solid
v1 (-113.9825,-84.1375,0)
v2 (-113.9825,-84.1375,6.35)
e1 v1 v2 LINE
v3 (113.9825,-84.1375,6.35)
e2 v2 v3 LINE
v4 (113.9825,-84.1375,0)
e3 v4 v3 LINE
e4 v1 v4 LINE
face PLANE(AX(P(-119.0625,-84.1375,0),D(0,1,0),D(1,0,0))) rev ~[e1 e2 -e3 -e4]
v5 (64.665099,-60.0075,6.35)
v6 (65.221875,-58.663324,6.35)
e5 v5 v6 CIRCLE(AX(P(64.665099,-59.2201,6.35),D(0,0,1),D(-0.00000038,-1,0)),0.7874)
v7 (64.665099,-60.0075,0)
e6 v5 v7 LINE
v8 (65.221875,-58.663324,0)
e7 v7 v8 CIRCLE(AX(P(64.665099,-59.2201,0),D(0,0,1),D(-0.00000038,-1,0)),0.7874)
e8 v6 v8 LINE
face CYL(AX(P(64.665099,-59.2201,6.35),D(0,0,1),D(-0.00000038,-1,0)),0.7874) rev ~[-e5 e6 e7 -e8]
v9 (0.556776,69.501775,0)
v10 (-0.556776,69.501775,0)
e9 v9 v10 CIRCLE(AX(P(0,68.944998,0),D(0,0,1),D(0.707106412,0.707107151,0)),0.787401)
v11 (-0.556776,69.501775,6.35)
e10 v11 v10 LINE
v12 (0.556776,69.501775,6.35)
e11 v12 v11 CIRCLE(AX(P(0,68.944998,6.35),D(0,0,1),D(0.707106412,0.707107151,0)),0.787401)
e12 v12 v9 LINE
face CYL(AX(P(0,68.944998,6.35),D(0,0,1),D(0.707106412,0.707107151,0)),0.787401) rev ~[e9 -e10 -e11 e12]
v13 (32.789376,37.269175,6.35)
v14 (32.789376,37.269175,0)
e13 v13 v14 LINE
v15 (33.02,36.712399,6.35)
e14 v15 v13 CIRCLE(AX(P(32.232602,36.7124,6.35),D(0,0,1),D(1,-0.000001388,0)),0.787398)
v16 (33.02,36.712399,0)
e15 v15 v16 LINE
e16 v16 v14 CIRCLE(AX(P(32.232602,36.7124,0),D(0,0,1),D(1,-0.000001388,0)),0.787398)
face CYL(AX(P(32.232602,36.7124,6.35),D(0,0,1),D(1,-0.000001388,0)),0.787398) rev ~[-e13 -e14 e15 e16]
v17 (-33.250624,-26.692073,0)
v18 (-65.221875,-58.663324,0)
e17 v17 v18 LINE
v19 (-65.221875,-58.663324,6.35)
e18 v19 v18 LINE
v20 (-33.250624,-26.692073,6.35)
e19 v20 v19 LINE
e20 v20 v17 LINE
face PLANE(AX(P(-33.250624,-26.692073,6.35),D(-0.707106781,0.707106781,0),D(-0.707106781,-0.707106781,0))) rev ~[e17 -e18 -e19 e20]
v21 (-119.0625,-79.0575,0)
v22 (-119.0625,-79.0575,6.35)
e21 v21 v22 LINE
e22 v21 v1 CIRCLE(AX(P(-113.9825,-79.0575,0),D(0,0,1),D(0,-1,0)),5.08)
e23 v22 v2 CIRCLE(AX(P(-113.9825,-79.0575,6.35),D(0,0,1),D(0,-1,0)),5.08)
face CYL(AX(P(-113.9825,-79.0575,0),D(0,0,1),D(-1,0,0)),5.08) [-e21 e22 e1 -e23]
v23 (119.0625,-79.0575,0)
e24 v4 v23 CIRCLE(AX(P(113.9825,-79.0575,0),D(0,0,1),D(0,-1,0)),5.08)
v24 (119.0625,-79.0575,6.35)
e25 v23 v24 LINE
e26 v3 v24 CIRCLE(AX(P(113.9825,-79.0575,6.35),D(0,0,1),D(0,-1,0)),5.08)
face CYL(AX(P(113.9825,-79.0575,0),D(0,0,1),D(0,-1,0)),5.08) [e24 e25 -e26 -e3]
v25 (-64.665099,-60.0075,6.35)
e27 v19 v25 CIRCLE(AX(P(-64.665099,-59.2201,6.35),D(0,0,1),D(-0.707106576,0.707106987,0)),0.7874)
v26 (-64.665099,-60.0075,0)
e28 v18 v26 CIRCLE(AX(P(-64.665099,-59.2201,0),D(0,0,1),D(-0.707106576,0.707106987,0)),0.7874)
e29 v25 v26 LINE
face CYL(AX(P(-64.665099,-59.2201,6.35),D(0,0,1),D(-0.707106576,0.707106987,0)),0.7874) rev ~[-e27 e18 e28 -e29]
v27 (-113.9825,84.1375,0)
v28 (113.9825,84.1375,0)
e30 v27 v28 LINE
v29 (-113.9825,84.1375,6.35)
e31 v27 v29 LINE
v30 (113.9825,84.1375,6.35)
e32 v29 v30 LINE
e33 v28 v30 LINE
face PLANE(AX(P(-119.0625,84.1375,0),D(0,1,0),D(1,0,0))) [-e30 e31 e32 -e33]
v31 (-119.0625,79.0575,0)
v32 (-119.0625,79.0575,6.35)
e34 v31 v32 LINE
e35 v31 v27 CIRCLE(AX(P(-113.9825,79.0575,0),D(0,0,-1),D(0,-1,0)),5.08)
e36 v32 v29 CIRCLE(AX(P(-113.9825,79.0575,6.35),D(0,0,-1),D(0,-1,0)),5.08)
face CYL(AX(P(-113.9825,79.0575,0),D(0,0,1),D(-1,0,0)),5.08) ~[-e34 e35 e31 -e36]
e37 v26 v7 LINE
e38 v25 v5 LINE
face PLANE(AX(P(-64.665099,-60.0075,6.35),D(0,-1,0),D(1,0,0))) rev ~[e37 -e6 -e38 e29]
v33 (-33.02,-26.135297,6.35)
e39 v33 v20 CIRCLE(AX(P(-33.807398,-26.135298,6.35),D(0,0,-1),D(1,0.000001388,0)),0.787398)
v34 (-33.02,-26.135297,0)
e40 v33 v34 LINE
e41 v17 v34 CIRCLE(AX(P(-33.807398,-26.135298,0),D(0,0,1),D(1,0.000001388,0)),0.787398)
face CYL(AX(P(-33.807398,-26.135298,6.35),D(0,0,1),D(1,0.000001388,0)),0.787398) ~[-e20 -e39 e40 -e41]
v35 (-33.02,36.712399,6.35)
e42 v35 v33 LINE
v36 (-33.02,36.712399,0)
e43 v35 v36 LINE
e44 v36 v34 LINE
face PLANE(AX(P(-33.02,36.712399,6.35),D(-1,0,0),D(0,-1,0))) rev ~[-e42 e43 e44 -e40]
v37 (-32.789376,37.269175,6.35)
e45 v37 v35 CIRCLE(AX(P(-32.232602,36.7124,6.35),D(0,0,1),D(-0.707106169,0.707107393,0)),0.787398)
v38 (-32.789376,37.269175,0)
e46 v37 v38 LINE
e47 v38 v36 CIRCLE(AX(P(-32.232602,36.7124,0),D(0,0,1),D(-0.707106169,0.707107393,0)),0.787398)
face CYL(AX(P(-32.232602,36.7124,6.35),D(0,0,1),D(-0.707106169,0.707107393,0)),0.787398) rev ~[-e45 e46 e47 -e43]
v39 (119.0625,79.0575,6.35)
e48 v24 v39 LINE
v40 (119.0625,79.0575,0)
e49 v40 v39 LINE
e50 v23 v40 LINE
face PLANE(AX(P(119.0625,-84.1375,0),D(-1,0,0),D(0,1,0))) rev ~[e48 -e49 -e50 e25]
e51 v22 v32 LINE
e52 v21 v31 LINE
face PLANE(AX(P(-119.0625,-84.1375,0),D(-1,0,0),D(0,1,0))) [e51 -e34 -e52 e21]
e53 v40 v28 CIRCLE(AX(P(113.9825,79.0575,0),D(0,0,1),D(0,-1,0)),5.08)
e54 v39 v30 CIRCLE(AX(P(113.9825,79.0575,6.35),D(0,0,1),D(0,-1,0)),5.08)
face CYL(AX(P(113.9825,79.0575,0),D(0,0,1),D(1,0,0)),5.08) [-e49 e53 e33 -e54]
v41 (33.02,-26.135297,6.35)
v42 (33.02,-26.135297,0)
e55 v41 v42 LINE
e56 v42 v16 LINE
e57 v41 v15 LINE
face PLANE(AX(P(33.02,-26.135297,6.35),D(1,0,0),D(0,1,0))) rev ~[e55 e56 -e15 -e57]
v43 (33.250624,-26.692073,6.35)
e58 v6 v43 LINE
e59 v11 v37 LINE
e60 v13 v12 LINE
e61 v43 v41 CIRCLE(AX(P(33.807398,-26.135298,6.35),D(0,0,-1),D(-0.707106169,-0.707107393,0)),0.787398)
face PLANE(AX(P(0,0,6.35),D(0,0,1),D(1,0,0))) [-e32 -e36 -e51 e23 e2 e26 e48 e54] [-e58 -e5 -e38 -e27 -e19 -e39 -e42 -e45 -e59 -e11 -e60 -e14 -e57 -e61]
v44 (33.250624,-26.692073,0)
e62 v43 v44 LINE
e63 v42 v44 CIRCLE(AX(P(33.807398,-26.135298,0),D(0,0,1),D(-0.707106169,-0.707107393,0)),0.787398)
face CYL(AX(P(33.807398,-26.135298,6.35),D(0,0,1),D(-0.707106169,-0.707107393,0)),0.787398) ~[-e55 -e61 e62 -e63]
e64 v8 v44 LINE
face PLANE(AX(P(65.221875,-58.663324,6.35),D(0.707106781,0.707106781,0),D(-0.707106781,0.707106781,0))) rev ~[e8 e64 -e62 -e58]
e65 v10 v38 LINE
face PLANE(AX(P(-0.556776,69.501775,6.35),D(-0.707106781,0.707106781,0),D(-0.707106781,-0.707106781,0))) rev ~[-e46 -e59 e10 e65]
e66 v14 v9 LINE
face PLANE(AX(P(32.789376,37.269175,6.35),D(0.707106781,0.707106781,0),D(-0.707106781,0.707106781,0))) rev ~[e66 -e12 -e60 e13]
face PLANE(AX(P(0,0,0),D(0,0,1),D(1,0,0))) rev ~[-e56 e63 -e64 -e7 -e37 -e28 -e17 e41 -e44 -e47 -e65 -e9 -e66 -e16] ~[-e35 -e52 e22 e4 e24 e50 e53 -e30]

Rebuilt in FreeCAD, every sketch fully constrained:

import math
import FreeCAD as App
import Part
import Sketcher

V = App.Vector
Q = App.Units.Quantity


def edges_at(feature, points):
    """Names of the edges that pass closest to the given points."""
    edges = feature.Shape.Edges
    near = lambda p: min(range(len(edges)), key=lambda i: edges[i].distToShape(Part.Vertex(*p))[0])
    return sorted({f"Edge{near(p) + 1}" for p in points})

doc = App.newDocument("Part")
body = doc.addObject("PartDesign::Body", "Body")

# Sketch on XY plane
sketch1 = doc.addObject("Sketcher::SketchObject", "Sketch")
body.addObject(sketch1)
sketch1.AttachmentSupport = (doc.XY_Plane, [""])
sketch1.MapMode = "FlatFace"
sketch1.addGeometry(Part.LineSegment(V(-119, 84, 0), V(-119, -84, 0)), False)
sketch1.addGeometry(Part.LineSegment(V(-119, -84, 0), V(119, -84, 0)), False)
sketch1.addGeometry(Part.LineSegment(V(119, -84, 0), V(119, 84, 0)), False)
sketch1.addGeometry(Part.LineSegment(V(119, 84, 0), V(-119, 84, 0)), False)
sketch1.addConstraint(Sketcher.Constraint("Coincident", 0, 2, 1, 1))
sketch1.addConstraint(Sketcher.Constraint("Coincident", 1, 2, 2, 1))
sketch1.addConstraint(Sketcher.Constraint("Coincident", 2, 2, 3, 1))
sketch1.addConstraint(Sketcher.Constraint("Coincident", 3, 2, 0, 1))
sketch1.addConstraint(Sketcher.Constraint("Vertical", 0))
sketch1.addConstraint(Sketcher.Constraint("Horizontal", 1))
sketch1.addConstraint(Sketcher.Constraint("Vertical", 2))
sketch1.addConstraint(Sketcher.Constraint("Horizontal", 3))
sketch1.addConstraint(Sketcher.Constraint("Symmetric", 0, 2, 2, 2, -1, 1))
sketch1.addConstraint(Sketcher.Constraint("DistanceX", 1, 1, 1, 2, Q("9.375 in")))
sketch1.addConstraint(Sketcher.Constraint("DistanceY", 0, 2, 0, 1, Q("6.625 in")))
pad1 = doc.addObject("PartDesign::Pad", "Pad")
body.addObject(pad1)
pad1.Profile = sketch1
pad1.Length = Q("0.25 in")
doc.recompute()

fillet = doc.addObject("PartDesign::Fillet", "Fillet")
body.addObject(fillet)
fillet.Base = (pad1, edges_at(pad1, [
    (-119.062, 84.138, 3.175),
    (119.062, 84.138, 3.175),
    (-119.062, -84.138, 3.175),
    (119.062, -84.138, 3.175),
]))
fillet.Radius = Q("0.2 in")

# Sketch on XY plane
sketch2 = doc.addObject("Sketcher::SketchObject", "Sketch001")
body.addObject(sketch2)
sketch2.AttachmentSupport = (doc.XY_Plane, [""])
sketch2.MapMode = "FlatFace"
sketch2.AttachmentOffset = App.Placement(V(0, 0, 0.25 * 25.4), App.Rotation())
sketch2.addGeometry(Part.LineSegment(V(-64, -59, 0), V(64, -59, 0)), False)
sketch2.addGeometry(Part.LineSegment(V(64, -59, 0), V(32, -27, 0)), False)
sketch2.addGeometry(Part.LineSegment(V(32, -27, 0), V(32, 37, 0)), False)
sketch2.addGeometry(Part.LineSegment(V(32, 37, 0), V(0, 68, 0)), False)
sketch2.addGeometry(Part.LineSegment(V(0, 68, 0), V(-32, 37, 0)), False)
sketch2.addGeometry(Part.LineSegment(V(-32, 37, 0), V(-32, -27, 0)), False)
sketch2.addGeometry(Part.LineSegment(V(-32, -27, 0), V(-64, -59, 0)), False)
sketch2.addConstraint(Sketcher.Constraint("Coincident", 0, 2, 1, 1))
sketch2.addConstraint(Sketcher.Constraint("Coincident", 1, 2, 2, 1))
sketch2.addConstraint(Sketcher.Constraint("Coincident", 2, 2, 3, 1))
sketch2.addConstraint(Sketcher.Constraint("Coincident", 3, 2, 4, 1))
sketch2.addConstraint(Sketcher.Constraint("Coincident", 4, 2, 5, 1))
sketch2.addConstraint(Sketcher.Constraint("Coincident", 5, 2, 6, 1))
sketch2.addConstraint(Sketcher.Constraint("Coincident", 6, 2, 0, 1))
sketch2.addConstraint(Sketcher.Constraint("Horizontal", 0))
sketch2.addConstraint(Sketcher.Constraint("Vertical", 2))
sketch2.addConstraint(Sketcher.Constraint("Vertical", 5))
sketch2.addConstraint(Sketcher.Constraint("Symmetric", 2, 2, 4, 2, -2))
sketch2.addConstraint(Sketcher.Constraint("PointOnObject", 3, 2, -2))
sketch2.addConstraint(Sketcher.Constraint("Parallel", 1, 3))
sketch2.addConstraint(Sketcher.Constraint("Perpendicular", 3, 4))
sketch2.addConstraint(Sketcher.Constraint("Parallel", 4, 6))
sketch2.addConstraint(Sketcher.Constraint("Horizontal", 1, 2, 5, 2))
sketch2.addConstraint(Sketcher.Constraint("Equal", 1, 3))
sketch2.addConstraint(Sketcher.Constraint("DistanceX", 0, 1, 0, 2, Q("5 in")))
sketch2.addConstraint(Sketcher.Constraint("DistanceY", 2, 1, 2, 2, Q("2.5 in")))
sketch2.addConstraint(Sketcher.Constraint("DistanceY", 0, 2, -1, 1, Q("2.3125 in")))
pocket1 = doc.addObject("PartDesign::Pocket", "Pocket")
body.addObject(pocket1)
pocket1.Profile = sketch2
pocket1.Length = Q("1 in")

# Sketch on XY plane
sketch3 = doc.addObject("Sketcher::SketchObject", "Sketch002")
body.addObject(sketch3)
sketch3.AttachmentSupport = (doc.XY_Plane, [""])
sketch3.MapMode = "FlatFace"
sketch3.AttachmentOffset = App.Placement(V(0, 0, 0.25 * 25.4), App.Rotation())
sketch3.addGeometry(Part.LineSegment(V(-64, -59, 0), V(64, -59, 0)), False)
sketch3.addGeometry(Part.LineSegment(V(64, -59, 0), V(32, -27, 0)), False)
sketch3.addGeometry(Part.LineSegment(V(32, -27, 0), V(32, 37, 0)), False)
sketch3.addGeometry(Part.LineSegment(V(32, 37, 0), V(0, 68, 0)), False)
sketch3.addGeometry(Part.LineSegment(V(0, 68, 0), V(-32, 37, 0)), False)
sketch3.addGeometry(Part.LineSegment(V(-32, 37, 0), V(-32, -27, 0)), False)
sketch3.addGeometry(Part.LineSegment(V(-32, -27, 0), V(-64, -59, 0)), False)
sketch3.addConstraint(Sketcher.Constraint("Coincident", 0, 2, 1, 1))
sketch3.addConstraint(Sketcher.Constraint("Coincident", 1, 2, 2, 1))
sketch3.addConstraint(Sketcher.Constraint("Coincident", 2, 2, 3, 1))
sketch3.addConstraint(Sketcher.Constraint("Coincident", 3, 2, 4, 1))
sketch3.addConstraint(Sketcher.Constraint("Coincident", 4, 2, 5, 1))
sketch3.addConstraint(Sketcher.Constraint("Coincident", 5, 2, 6, 1))
sketch3.addConstraint(Sketcher.Constraint("Coincident", 6, 2, 0, 1))
sketch3.addConstraint(Sketcher.Constraint("Horizontal", 0))
sketch3.addConstraint(Sketcher.Constraint("Vertical", 2))
sketch3.addConstraint(Sketcher.Constraint("Vertical", 5))
sketch3.addConstraint(Sketcher.Constraint("Symmetric", 2, 2, 4, 2, -2))
sketch3.addConstraint(Sketcher.Constraint("PointOnObject", 3, 2, -2))
sketch3.addConstraint(Sketcher.Constraint("Parallel", 1, 3))
sketch3.addConstraint(Sketcher.Constraint("Perpendicular", 3, 4))
sketch3.addConstraint(Sketcher.Constraint("Parallel", 4, 6))
sketch3.addConstraint(Sketcher.Constraint("Horizontal", 1, 2, 5, 2))
sketch3.addConstraint(Sketcher.Constraint("Equal", 1, 3))
sketch3.addConstraint(Sketcher.Constraint("DistanceX", 0, 1, 0, 2, Q("5 in")))
sketch3.addConstraint(Sketcher.Constraint("DistanceY", 2, 1, 2, 2, Q("2.5 in")))
sketch3.addConstraint(Sketcher.Constraint("DistanceY", 0, 2, -1, 1, Q("2.3125 in")))
pocket2 = doc.addObject("PartDesign::Pocket", "Pocket001")
body.addObject(pocket2)
pocket2.Profile = sketch3
pocket2.Type = "ThroughAll"

# Sketch on XY plane
sketch4 = doc.addObject("Sketcher::SketchObject", "Sketch003")
body.addObject(sketch4)
sketch4.AttachmentSupport = (doc.XY_Plane, [""])
sketch4.MapMode = "FlatFace"
sketch4.AttachmentOffset = App.Placement(V(0, 0, 0.25 * 25.4), App.Rotation())
sketch4.addGeometry(Part.LineSegment(V(-33, 36.7, 0), V(-33, -26.1, 0)), False)
sketch4.addGeometry(Part.ArcOfCircle(Part.Circle(V(-33.8, -26.1, 0), V(0, 0, 1), 0.8), math.radians(-45), math.radians(0)), False)
sketch4.addGeometry(Part.LineSegment(V(-33.3, -26.7, 0), V(-65.2, -58.7, 0)), False)
sketch4.addGeometry(Part.ArcOfCircle(Part.Circle(V(-64.7, -59.2, 0), V(0, 0, 1), 0.8), math.radians(135), math.radians(270)), False)
sketch4.addGeometry(Part.LineSegment(V(-64.7, -60, 0), V(64.7, -60, 0)), False)
sketch4.addGeometry(Part.ArcOfCircle(Part.Circle(V(64.7, -59.2, 0), V(0, 0, 1), 0.8), math.radians(-90), math.radians(45)), False)
sketch4.addGeometry(Part.LineSegment(V(65.2, -58.7, 0), V(33.3, -26.7, 0)), False)
sketch4.addGeometry(Part.ArcOfCircle(Part.Circle(V(33.8, -26.1, 0), V(0, 0, 1), 0.8), math.radians(180), math.radians(225)), False)
sketch4.addGeometry(Part.LineSegment(V(33, -26.1, 0), V(33, 36.7, 0)), False)
sketch4.addGeometry(Part.ArcOfCircle(Part.Circle(V(32.2, 36.7, 0), V(0, 0, 1), 0.8), math.radians(0), math.radians(45)), False)
sketch4.addGeometry(Part.LineSegment(V(32.8, 37.3, 0), V(0.6, 69.5, 0)), False)
sketch4.addGeometry(Part.ArcOfCircle(Part.Circle(V(0, 68.9, 0), V(0, 0, 1), 0.8), math.radians(45), math.radians(135)), False)
sketch4.addGeometry(Part.LineSegment(V(-0.6, 69.5, 0), V(-32.8, 37.3, 0)), False)
sketch4.addGeometry(Part.ArcOfCircle(Part.Circle(V(-32.2, 36.7, 0), V(0, 0, 1), 0.8), math.radians(135), math.radians(180)), False)
sketch4.addConstraint(Sketcher.Constraint("Tangent", 0, 2, 1, 2))
sketch4.addConstraint(Sketcher.Constraint("Tangent", 1, 1, 2, 1))
sketch4.addConstraint(Sketcher.Constraint("Tangent", 2, 2, 3, 1))
sketch4.addConstraint(Sketcher.Constraint("Tangent", 3, 2, 4, 1))
sketch4.addConstraint(Sketcher.Constraint("Tangent", 4, 2, 5, 1))
sketch4.addConstraint(Sketcher.Constraint("Tangent", 5, 2, 6, 1))
sketch4.addConstraint(Sketcher.Constraint("Tangent", 6, 2, 7, 2))
sketch4.addConstraint(Sketcher.Constraint("Tangent", 7, 1, 8, 1))
sketch4.addConstraint(Sketcher.Constraint("Tangent", 8, 2, 9, 1))
sketch4.addConstraint(Sketcher.Constraint("Tangent", 9, 2, 10, 1))
sketch4.addConstraint(Sketcher.Constraint("Tangent", 10, 2, 11, 1))
sketch4.addConstraint(Sketcher.Constraint("Tangent", 11, 2, 12, 1))
sketch4.addConstraint(Sketcher.Constraint("Tangent", 12, 2, 13, 1))
sketch4.addConstraint(Sketcher.Constraint("Tangent", 13, 2, 0, 1))
sketch4.addConstraint(Sketcher.Constraint("Vertical", 0))
sketch4.addConstraint(Sketcher.Constraint("Horizontal", 4))
sketch4.addConstraint(Sketcher.Constraint("Vertical", 8))
sketch4.addConstraint(Sketcher.Constraint("Equal", 3, 5))
sketch4.addConstraint(Sketcher.Constraint("Equal", 1, 7))
sketch4.addConstraint(Sketcher.Constraint("Equal", 7, 9))
sketch4.addConstraint(Sketcher.Constraint("Equal", 5, 11))
sketch4.addConstraint(Sketcher.Constraint("Equal", 9, 13))
sketch4.addConstraint(Sketcher.Constraint("Symmetric", 1, 3, 7, 3, -2))
sketch4.addConstraint(Sketcher.Constraint("Symmetric", 10, 2, 11, 2, -2))
sketch4.addConstraint(Sketcher.Constraint("Perpendicular", 2, 6))
sketch4.addConstraint(Sketcher.Constraint("Parallel", 6, 10))
sketch4.addConstraint(Sketcher.Constraint("Perpendicular", 10, 12))
sketch4.addConstraint(Sketcher.Constraint("Radius", 1, Q("0.0309999 in")))
sketch4.addConstraint(Sketcher.Constraint("Radius", 3, Q("0.031 in")))
sketch4.addConstraint(Sketcher.Constraint("DistanceX", 0, 2, -1, 1, Q("1.3 in")))
sketch4.addConstraint(Sketcher.Constraint("DistanceX", 4, 1, 4, 2, 129.330198))
sketch4.addConstraint(Sketcher.Constraint("DistanceY", 3, 3, -1, 1, Q("2.3315 in")))
sketch4.addConstraint(Sketcher.Constraint("DistanceY", -1, 1, 9, 3, 36.7124))
pocket3 = doc.addObject("PartDesign::Pocket", "Pocket002")
body.addObject(pocket3)
pocket3.Profile = sketch4
pocket3.Type = "ThroughAll"

doc.recompute()
